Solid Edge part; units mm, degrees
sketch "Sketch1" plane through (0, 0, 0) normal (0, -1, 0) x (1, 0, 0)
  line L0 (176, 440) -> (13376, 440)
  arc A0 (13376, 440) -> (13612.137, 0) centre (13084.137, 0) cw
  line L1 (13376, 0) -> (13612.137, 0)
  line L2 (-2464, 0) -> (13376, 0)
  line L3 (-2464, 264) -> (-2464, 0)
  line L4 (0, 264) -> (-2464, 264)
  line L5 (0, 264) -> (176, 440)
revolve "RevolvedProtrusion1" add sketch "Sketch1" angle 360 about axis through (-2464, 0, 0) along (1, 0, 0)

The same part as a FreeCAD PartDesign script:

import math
import FreeCAD as App
import Part
import Sketcher

V = App.Vector
Q = App.Units.Quantity

doc = App.newDocument("Part")
params = doc.addObject("Spreadsheet::Sheet", "Params")
for row, (alias, value) in enumerate([
    ("sketch1_radius", "528 mm"),
    ("sketch1_width", "13200 mm"),
    ("sketch1_width2", "2464 mm"),
    ("sketch1_height", "264 mm"),
    ("revolution_angle", "360 deg"),
], start=1):
    params.set(f"A{row}", alias)
    params.set(f"B{row}", "=" + value)
    params.setAlias(f"B{row}", alias)

body = doc.addObject("PartDesign::Body", "Body")

# Sketch on XZ plane
sketch1 = body.newObject("Sketcher::SketchObject", "Sketch")
sketch1.AttachmentSupport = (doc.getObject("XZ_Plane"), [""])
sketch1.MapMode = "FlatFace"
sketch1.addGeometry([
    Part.LineSegment(V(13376, 440, 0), V(176, 440, 0)),  # 0
    Part.LineSegment(V(176, 440, 0), V(0, 264, 0)),  # 1
    Part.LineSegment(V(0, 264, 0), V(-2464, 264, 0)),  # 2
    Part.LineSegment(V(-2464, 264, 0), V(-2464, 0, 0)),  # 3
    Part.LineSegment(V(-2464, 0, 0), V(13612, 0, 0)),  # 4
    Part.ArcOfCircle(Part.Circle(V(13084, 0, 0), V(0, 0, 1), 528), math.radians(0), math.radians(56)),  # 5
], False)
sketch1.addConstraint([
    Sketcher.Constraint("Coincident", 0, 2, 1, 1),
    Sketcher.Constraint("Coincident", 1, 2, 2, 1),
    Sketcher.Constraint("Coincident", 2, 2, 3, 1),
    Sketcher.Constraint("Coincident", 3, 2, 4, 1),
    Sketcher.Constraint("Coincident", 4, 2, 5, 1),
    Sketcher.Constraint("Coincident", 5, 2, 0, 1),
    Sketcher.Constraint("Horizontal", 0),
    Sketcher.Constraint("Horizontal", 2),
    Sketcher.Constraint("Vertical", 3),
    Sketcher.Constraint("Horizontal", 4),
    Sketcher.Constraint("PointOnObject", 5, 3, -1),
    Sketcher.Constraint("PointOnObject", 1, 2, -2),
    Sketcher.Constraint("PointOnObject", 3, 2, -1),
    Sketcher.Constraint("Radius", 5, Q("528 mm")),
    Sketcher.Constraint("DistanceX", 0, 2, 0, 1, Q("13200 mm")),
    Sketcher.Constraint("DistanceX", 2, 2, 2, 1, Q("2464 mm")),
    Sketcher.Constraint("DistanceY", 3, 2, 3, 1, Q("264 mm")),
    Sketcher.Constraint("Angle", 1, Q("-135 deg")),
    Sketcher.Constraint("DistanceX", -1, 1, 0, 2, Q("176 mm")),
])
sketch1.setExpression("Constraints[13]", "Params.sketch1_radius")
sketch1.setExpression("Constraints[14]", "Params.sketch1_width")
sketch1.setExpression("Constraints[15]", "Params.sketch1_width2")
sketch1.setExpression("Constraints[16]", "Params.sketch1_height")
revolution = body.newObject("PartDesign::Revolution", "Revolution")
revolution.Profile = sketch1
revolution.ReferenceAxis = (sketch1, ["H_Axis"])
revolution.setExpression("Angle", "Params.revolution_angle")

doc.recompute()
